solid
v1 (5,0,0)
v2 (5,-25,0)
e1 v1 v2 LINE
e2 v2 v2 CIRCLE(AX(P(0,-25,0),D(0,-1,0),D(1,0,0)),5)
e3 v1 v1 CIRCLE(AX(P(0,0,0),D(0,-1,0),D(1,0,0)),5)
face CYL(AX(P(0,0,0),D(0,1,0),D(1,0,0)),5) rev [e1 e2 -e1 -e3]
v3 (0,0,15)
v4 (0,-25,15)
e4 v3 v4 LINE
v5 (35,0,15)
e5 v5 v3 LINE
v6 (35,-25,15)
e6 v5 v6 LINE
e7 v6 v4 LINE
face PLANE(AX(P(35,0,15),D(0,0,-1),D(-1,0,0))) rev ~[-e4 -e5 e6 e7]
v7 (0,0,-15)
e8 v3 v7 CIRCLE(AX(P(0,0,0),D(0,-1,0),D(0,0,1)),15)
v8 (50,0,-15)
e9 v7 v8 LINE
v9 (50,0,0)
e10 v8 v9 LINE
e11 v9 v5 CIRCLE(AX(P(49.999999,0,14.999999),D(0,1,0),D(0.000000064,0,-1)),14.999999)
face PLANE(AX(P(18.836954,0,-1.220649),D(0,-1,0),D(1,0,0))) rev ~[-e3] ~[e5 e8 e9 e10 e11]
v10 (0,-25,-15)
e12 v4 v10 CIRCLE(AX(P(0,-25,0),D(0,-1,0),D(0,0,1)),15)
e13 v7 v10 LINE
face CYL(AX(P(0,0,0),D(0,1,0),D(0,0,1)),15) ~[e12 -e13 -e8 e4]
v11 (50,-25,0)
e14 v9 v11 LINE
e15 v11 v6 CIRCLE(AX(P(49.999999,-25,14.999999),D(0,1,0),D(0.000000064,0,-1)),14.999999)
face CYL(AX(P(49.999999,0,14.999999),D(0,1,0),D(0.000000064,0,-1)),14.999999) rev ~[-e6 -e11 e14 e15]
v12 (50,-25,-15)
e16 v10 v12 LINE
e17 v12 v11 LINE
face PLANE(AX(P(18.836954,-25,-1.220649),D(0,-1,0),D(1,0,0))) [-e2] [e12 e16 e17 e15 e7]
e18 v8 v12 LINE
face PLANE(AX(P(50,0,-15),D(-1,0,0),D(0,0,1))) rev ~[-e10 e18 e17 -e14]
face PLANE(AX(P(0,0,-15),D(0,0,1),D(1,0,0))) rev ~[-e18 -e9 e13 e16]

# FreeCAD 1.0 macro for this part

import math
import FreeCAD as App
import Part
import Sketcher
from FreeCAD import Vector
Q = App.Units.Quantity

doc = App.newDocument("Part")
body = doc.addObject("PartDesign::Body", "Body")

# Sketch on XZ plane
sketch1 = doc.addObject("Sketcher::SketchObject", "Sketch")
body.addObject(sketch1)
sketch1.AttachmentSupport = (doc.XZ_Plane, [""])
sketch1.MapMode = "FlatFace"
sketch1.addGeometry([
    Part.LineSegment(Vector(35, 15, 0), Vector(0, 15, 0)),  # 0
    Part.ArcOfCircle(Part.Circle(Vector(0, 0, 0), Vector(0, 0, 1), 15), math.radians(90), math.radians(270)),  # 1
    Part.LineSegment(Vector(0, -15, 0), Vector(50, -15, 0)),  # 2
    Part.LineSegment(Vector(50, -15, 0), Vector(50, 0, 0)),  # 3
    Part.ArcOfCircle(Part.Circle(Vector(49.999999, 14.999999, 0), Vector(0, 0, 1), 14.999999), math.radians(179.999996), math.radians(270.000004)),  # 4
    Part.Circle(Vector(0, 0, 0), Vector(0, 0, 1), 5),  # 5
], False)
sketch1.addConstraint([
    Sketcher.Constraint("Tangent", 0, 2, 1, 1),
    Sketcher.Constraint("Tangent", 1, 2, 2, 1),
    Sketcher.Constraint("Coincident", 2, 2, 3, 1),
    Sketcher.Constraint("Coincident", 3, 2, 4, 2),
    Sketcher.Constraint("Coincident", 4, 1, 0, 1),
    Sketcher.Constraint("Horizontal", 0),
    Sketcher.Constraint("Horizontal", 2),
    Sketcher.Constraint("Vertical", 3),
    Sketcher.Constraint("Coincident", 1, 3, -1, 1),
    Sketcher.Constraint("Coincident", 5, 3, -1, 1),
    Sketcher.Constraint("Equal", 1, 4),
    Sketcher.Constraint("PointOnObject", 3, 2, -1),
    Sketcher.Constraint("Vertical", 4, 3, 2, 2),
    Sketcher.Constraint("Diameter", 5, Q("10 mm")),
    Sketcher.Constraint("Radius", 1, Q("15 mm")),
    Sketcher.Constraint("DistanceX", 0, 2, 0, 1, Q("35 mm")),
])
pad1 = doc.addObject("PartDesign::Pad", "Pad")
body.addObject(pad1)
pad1.Profile = sketch1
pad1.Length = 25

doc.recompute()
